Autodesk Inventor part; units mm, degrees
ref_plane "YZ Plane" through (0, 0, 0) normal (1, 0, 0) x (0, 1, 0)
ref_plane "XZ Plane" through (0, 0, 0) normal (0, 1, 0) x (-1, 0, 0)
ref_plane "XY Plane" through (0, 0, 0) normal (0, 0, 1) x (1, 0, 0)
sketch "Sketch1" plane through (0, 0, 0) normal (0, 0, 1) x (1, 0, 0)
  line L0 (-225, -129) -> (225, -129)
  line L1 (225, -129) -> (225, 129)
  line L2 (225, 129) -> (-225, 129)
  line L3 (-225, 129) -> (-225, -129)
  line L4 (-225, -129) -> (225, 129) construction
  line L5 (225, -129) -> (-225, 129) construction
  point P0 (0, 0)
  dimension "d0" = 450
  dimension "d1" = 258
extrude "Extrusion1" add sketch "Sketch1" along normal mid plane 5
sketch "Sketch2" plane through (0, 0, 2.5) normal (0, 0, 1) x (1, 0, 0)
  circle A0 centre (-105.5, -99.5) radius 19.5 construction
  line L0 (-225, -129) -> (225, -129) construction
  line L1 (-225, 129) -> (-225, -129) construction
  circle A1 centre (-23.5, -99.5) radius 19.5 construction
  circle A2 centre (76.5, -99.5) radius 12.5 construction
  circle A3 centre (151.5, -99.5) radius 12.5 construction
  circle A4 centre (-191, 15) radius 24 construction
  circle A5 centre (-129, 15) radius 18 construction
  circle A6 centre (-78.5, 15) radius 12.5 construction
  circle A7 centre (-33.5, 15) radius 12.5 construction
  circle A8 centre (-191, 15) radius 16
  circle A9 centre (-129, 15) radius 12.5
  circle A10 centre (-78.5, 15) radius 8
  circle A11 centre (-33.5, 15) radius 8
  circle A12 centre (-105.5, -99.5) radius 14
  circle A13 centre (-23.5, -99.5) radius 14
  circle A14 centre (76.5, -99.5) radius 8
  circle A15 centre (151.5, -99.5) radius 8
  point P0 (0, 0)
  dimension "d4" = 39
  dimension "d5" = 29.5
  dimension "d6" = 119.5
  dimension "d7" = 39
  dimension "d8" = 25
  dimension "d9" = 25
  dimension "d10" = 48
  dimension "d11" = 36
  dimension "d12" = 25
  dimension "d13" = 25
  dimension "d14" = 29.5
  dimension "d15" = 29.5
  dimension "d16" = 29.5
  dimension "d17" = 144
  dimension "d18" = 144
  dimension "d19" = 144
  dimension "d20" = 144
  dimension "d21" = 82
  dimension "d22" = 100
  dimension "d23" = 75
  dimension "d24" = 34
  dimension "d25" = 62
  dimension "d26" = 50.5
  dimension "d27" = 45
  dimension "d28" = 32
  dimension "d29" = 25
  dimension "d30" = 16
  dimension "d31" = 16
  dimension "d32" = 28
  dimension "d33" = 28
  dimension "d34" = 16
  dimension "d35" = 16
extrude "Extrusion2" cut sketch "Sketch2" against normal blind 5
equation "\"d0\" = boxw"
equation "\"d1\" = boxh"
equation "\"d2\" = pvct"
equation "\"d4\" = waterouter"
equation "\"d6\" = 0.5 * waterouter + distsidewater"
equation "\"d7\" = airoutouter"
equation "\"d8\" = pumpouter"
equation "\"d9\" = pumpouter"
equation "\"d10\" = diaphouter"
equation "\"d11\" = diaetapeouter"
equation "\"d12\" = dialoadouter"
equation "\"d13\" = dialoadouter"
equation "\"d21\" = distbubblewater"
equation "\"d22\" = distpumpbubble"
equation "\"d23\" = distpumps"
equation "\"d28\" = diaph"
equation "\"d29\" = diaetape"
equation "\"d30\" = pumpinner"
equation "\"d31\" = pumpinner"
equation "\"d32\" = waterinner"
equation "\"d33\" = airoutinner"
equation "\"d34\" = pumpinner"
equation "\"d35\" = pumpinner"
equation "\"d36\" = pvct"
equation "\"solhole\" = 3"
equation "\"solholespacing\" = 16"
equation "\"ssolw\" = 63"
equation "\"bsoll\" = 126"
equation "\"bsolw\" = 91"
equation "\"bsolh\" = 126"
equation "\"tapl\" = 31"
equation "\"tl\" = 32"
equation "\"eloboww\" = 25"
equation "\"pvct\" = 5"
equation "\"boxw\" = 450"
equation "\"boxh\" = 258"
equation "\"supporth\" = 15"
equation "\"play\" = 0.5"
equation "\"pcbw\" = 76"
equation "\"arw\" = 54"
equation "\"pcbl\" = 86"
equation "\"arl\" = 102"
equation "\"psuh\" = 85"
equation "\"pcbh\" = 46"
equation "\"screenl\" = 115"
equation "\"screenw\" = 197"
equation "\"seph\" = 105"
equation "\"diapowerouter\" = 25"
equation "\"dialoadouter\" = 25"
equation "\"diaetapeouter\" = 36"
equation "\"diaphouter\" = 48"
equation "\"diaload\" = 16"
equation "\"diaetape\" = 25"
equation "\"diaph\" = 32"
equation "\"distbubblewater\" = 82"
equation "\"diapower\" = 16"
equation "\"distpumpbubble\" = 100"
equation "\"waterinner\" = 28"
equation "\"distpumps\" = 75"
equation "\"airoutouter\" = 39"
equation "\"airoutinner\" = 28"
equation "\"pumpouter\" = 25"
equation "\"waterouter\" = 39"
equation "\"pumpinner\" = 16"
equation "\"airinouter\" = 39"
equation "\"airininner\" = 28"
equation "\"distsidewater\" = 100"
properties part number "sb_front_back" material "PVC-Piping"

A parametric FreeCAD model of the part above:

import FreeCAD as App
import Part
import Sketcher
from FreeCAD import Vector
Q = App.Units.Quantity

doc = App.newDocument("Part")
body = doc.addObject("PartDesign::Body", "Body")

# Sketch on XY plane
sketch1 = body.newObject("Sketcher::SketchObject", "Sketch")
sketch1.AttachmentSupport = (doc.getObject("XY_Plane"), [""])
sketch1.MapMode = "FlatFace"
sketch1.addGeometry([
    Part.LineSegment(Vector(-225, 129, 0), Vector(-225, -129, 0)),
    Part.LineSegment(Vector(-225, -129, 0), Vector(225, -129, 0)),
    Part.LineSegment(Vector(225, -129, 0), Vector(225, 129, 0)),
    Part.LineSegment(Vector(225, 129, 0), Vector(-225, 129, 0)),
], False)
sketch1.addConstraint([
    Sketcher.Constraint("Coincident", 0, 2, 1, 1),
    Sketcher.Constraint("Coincident", 1, 2, 2, 1),
    Sketcher.Constraint("Coincident", 2, 2, 3, 1),
    Sketcher.Constraint("Coincident", 3, 2, 0, 1),
    Sketcher.Constraint("Vertical", 0),
    Sketcher.Constraint("Horizontal", 1),
    Sketcher.Constraint("Vertical", 2),
    Sketcher.Constraint("Horizontal", 3),
    Sketcher.Constraint("Symmetric", 0, 2, 2, 2, -1, 1),
    Sketcher.Constraint("DistanceX", 1, 1, 1, 2, Q("450 mm")),
    Sketcher.Constraint("DistanceY", 0, 2, 0, 1, Q("258 mm")),
])
pad1 = body.newObject("PartDesign::Pad", "Pad")
pad1.Profile = sketch1
pad1.Length = 5
pad1.Midplane = True

# Sketch on XY plane
sketch2 = body.newObject("Sketcher::SketchObject", "Sketch001")
sketch2.AttachmentSupport = (doc.getObject("XY_Plane"), [""])
sketch2.MapMode = "FlatFace"
sketch2.AttachmentOffset = App.Placement(Vector(0, 0, 2.5), App.Rotation())
sketch2.addGeometry([
    Part.Circle(Vector(-191, 15, 0), Vector(0, 0, 1), 16),  # 0
    Part.Circle(Vector(-129, 15, 0), Vector(0, 0, 1), 12),  # 1
    Part.Circle(Vector(-78, 15, 0), Vector(0, 0, 1), 8),  # 2
    Part.Circle(Vector(-34, 15, 0), Vector(0, 0, 1), 8),  # 3
    Part.Circle(Vector(-106, -100, 0), Vector(0, 0, 1), 14),  # 4
    Part.Circle(Vector(-24, -100, 0), Vector(0, 0, 1), 14),  # 5
    Part.Circle(Vector(76, -100, 0), Vector(0, 0, 1), 8),  # 6
    Part.Circle(Vector(152, -100, 0), Vector(0, 0, 1), 8),  # 7
], False)
sketch2.addConstraint([
    Sketcher.Constraint("Equal", 2, 3),
    Sketcher.Constraint("Equal", 4, 5),
    Sketcher.Constraint("Equal", 3, 6),
    Sketcher.Constraint("Equal", 6, 7),
    Sketcher.Constraint("Horizontal", 0, 3, 1, 3),
    Sketcher.Constraint("Horizontal", 1, 3, 2, 3),
    Sketcher.Constraint("Horizontal", 2, 3, 3, 3),
    Sketcher.Constraint("Horizontal", 4, 3, 5, 3),
    Sketcher.Constraint("Horizontal", 5, 3, 6, 3),
    Sketcher.Constraint("Horizontal", 6, 3, 7, 3),
    Sketcher.Constraint("Diameter", 0, Q("32 mm")),
    Sketcher.Constraint("Diameter", 1, Q("25 mm")),
    Sketcher.Constraint("Diameter", 2, Q("16 mm")),
    Sketcher.Constraint("Diameter", 4, Q("28 mm")),
    Sketcher.Constraint("DistanceX", 0, 3, 1, 3, Q("62 mm")),
    Sketcher.Constraint("DistanceX", 2, 3, 3, 3, Q("45 mm")),
    Sketcher.Constraint("DistanceX", 4, 3, 5, 3, Q("82 mm")),
    Sketcher.Constraint("DistanceX", 5, 3, 6, 3, Q("100 mm")),
    Sketcher.Constraint("DistanceX", 6, 3, 7, 3, Q("75 mm")),
    Sketcher.Constraint("DistanceX", 1, 3, 2, 3, Q("50.5 mm")),
    Sketcher.Constraint("DistanceX", 0, 3, -1, 1, Q("191 mm")),
    Sketcher.Constraint("DistanceY", -1, 1, 0, 3, Q("15 mm")),
    Sketcher.Constraint("DistanceX", 4, 3, 2, 3, Q("27 mm")),
    Sketcher.Constraint("DistanceY", 4, 3, -1, 1, Q("99.5 mm")),
])
pocket1 = body.newObject("PartDesign::Pocket", "Pocket")
pocket1.Profile = sketch2
pocket1.Length = 5

doc.recompute()
